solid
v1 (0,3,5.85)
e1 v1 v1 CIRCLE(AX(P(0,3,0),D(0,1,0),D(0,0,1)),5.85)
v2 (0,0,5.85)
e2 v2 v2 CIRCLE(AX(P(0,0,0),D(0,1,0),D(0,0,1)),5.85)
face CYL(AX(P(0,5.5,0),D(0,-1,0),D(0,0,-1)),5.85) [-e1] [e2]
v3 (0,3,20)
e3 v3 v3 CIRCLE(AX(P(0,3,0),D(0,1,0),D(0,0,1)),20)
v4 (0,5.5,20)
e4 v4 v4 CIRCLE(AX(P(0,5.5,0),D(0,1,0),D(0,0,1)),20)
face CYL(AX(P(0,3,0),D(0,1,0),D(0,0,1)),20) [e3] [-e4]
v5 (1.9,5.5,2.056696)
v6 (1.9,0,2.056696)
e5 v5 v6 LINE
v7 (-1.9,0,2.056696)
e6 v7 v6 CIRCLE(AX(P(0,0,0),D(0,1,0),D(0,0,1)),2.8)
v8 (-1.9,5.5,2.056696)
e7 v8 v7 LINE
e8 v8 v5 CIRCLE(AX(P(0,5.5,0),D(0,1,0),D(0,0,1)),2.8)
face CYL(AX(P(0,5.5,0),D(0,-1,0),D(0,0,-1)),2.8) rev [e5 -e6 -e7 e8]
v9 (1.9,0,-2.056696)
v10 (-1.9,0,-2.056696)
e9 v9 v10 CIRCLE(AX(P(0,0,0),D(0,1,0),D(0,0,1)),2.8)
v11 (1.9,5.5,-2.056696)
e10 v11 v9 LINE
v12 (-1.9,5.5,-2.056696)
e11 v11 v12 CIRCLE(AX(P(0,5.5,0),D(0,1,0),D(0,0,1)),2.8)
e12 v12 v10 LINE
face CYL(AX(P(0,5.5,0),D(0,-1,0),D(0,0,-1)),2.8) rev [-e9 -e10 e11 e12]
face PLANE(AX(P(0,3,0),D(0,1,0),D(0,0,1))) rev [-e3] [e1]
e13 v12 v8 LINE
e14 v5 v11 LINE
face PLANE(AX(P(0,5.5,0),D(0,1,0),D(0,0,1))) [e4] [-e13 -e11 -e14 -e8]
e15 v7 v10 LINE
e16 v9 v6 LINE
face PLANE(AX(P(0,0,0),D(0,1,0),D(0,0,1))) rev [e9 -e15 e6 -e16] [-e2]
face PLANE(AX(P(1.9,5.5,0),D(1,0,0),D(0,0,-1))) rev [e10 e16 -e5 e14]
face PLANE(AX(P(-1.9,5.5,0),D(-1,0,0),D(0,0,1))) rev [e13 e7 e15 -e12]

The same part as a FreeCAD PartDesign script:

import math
import FreeCAD as App
import Part
import Sketcher

doc = App.newDocument("Part")
params = doc.addObject("Spreadsheet::Sheet", "Params")
for row, (alias, value) in enumerate([
    ("sketch1_radius", "2.8 mm"),
    ("sketch1_radius2", "5.85 mm"),
    ("pad1_length", "5.5 mm"),
    ("sketch2_diameter", "40 mm"),
    ("pad2_length", "2.5 mm"),
    ("sketch3_radius", "2.8 mm"),
    ("pocket1_length", "8 mm"),
], start=1):
    params.set(f"A{row}", alias)
    params.set(f"B{row}", "=" + value)
    params.setAlias(f"B{row}", alias)

body = doc.addObject("PartDesign::Body", "Body")

# Sketch on XZ plane
sketch1 = body.newObject("Sketcher::SketchObject", "Sketch")
sketch1.AttachmentSupport = (doc.getObject("XZ_Plane"), [""])
sketch1.MapMode = "FlatFace"
sketch1.addGeometry([
    Part.ArcOfCircle(Part.Circle(App.Vector(0, 0, 0), App.Vector(0, 0, 1), 5.9), math.radians(0), math.radians(71)),  # 0
    Part.ArcOfCircle(Part.Circle(App.Vector(0, 0, 0), App.Vector(0, 0, 1), 5.9), math.radians(-71), math.radians(0)),  # 1
    Part.ArcOfCircle(Part.Circle(App.Vector(0, 0, 0), App.Vector(0, 0, 1), 5.8), math.radians(-109), math.radians(-71)),  # 2
    Part.ArcOfCircle(Part.Circle(App.Vector(0, 0, 0), App.Vector(0, 0, 1), 5.8), math.radians(109), math.radians(251)),  # 3
    Part.ArcOfCircle(Part.Circle(App.Vector(0, 0, 0), App.Vector(0, 0, 1), 5.8), math.radians(71), math.radians(109)),  # 4
    Part.ArcOfCircle(Part.Circle(App.Vector(0, 0, 0), App.Vector(0, 0, 1), 2.8), math.radians(-133), math.radians(-47)),  # 5
    Part.LineSegment(App.Vector(1.9, -2.1, 0), App.Vector(1.9, 2.1, 0)),  # 6
    Part.ArcOfCircle(Part.Circle(App.Vector(0, 0, 0), App.Vector(0, 0, 1), 2.8), math.radians(47), math.radians(133)),  # 7
    Part.LineSegment(App.Vector(-1.9, 2.1, 0), App.Vector(-1.9, -2.1, 0)),  # 8
], False)
sketch1.addConstraint([
    Sketcher.Constraint("Tangent", 0, 1, 1, 2),
    Sketcher.Constraint("Tangent", 1, 1, 2, 2),
    Sketcher.Constraint("Tangent", 2, 1, 3, 2),
    Sketcher.Constraint("Tangent", 3, 1, 4, 2),
    Sketcher.Constraint("Tangent", 4, 1, 0, 2),
    Sketcher.Constraint("Coincident", 5, 2, 6, 1),
    Sketcher.Constraint("Coincident", 6, 2, 7, 1),
    Sketcher.Constraint("Coincident", 7, 2, 8, 1),
    Sketcher.Constraint("Coincident", 8, 2, 5, 1),
    Sketcher.Constraint("Vertical", 6),
    Sketcher.Constraint("Vertical", 8),
    Sketcher.Constraint("Coincident", 0, 3, -1, 1),
    Sketcher.Constraint("Coincident", 2, 3, -1, 1),
    Sketcher.Constraint("Coincident", 5, 3, -1, 1),
    Sketcher.Constraint("Coincident", 7, 3, -1, 1),
    Sketcher.Constraint("Equal", 5, 7),
    Sketcher.Constraint("PointOnObject", 0, 1, -1),
    Sketcher.Constraint("Horizontal", 1, 1, 2, 1),
    Sketcher.Constraint("Horizontal", 3, 1, 4, 1),
    Sketcher.Constraint("Horizontal", 6, 2, 7, 2),
    Sketcher.Constraint("Vertical", 2, 1, 3, 1),
    Sketcher.Constraint("Vertical", 4, 1, 5, 2),
    Sketcher.Constraint("Radius", 5, 2.8),
    Sketcher.Constraint("Radius", 0, 5.85),
    Sketcher.Constraint("DistanceX", -1, 1, 1, 1, 1.9),
])
sketch1.setExpression("Constraints[22]", "Params.sketch1_radius")
sketch1.setExpression("Constraints[23]", "Params.sketch1_radius2")
pad1 = body.newObject("PartDesign::Pad", "Pad")
pad1.Profile = sketch1
pad1.setExpression("Length", "Params.pad1_length")
pad1.Reversed = True

# Sketch on XZ plane
sketch2 = body.newObject("Sketcher::SketchObject", "Sketch001")
sketch2.AttachmentSupport = (doc.getObject("XZ_Plane"), [""])
sketch2.MapMode = "FlatFace"
sketch2.AttachmentOffset = App.Placement(App.Vector(0, 0, -5.5), App.Rotation())
sketch2.addGeometry(Part.Circle(App.Vector(0, 0, 0), App.Vector(0, 0, 1), 20), False)
sketch2.addConstraint([
    Sketcher.Constraint("Coincident", 0, 3, -1, 1),
    Sketcher.Constraint("Diameter", 0, 40.0),
])
sketch2.setExpression("Constraints[1]", "Params.sketch2_diameter")
pad2 = body.newObject("PartDesign::Pad", "Pad001")
pad2.Profile = sketch2
pad2.setExpression("Length", "Params.pad2_length")

# Sketch on XZ plane
sketch3 = body.newObject("Sketcher::SketchObject", "Sketch002")
sketch3.AttachmentSupport = (doc.getObject("XZ_Plane"), [""])
sketch3.MapMode = "FlatFace"
sketch3.AttachmentOffset = App.Placement(App.Vector(0, 0, -3), App.Rotation())
sketch3.addGeometry([
    Part.LineSegment(App.Vector(-1.9, 2.1, 0), App.Vector(-1.9, -2.1, 0)),
    Part.ArcOfCircle(Part.Circle(App.Vector(0, 0, 0), App.Vector(0, 0, 1), 2.8), math.radians(-133), math.radians(-47)),
    Part.LineSegment(App.Vector(1.9, -2.1, 0), App.Vector(1.9, 2.1, 0)),
    Part.ArcOfCircle(Part.Circle(App.Vector(0, 0, 0), App.Vector(0, 0, 1), 2.8), math.radians(47), math.radians(133)),
], False)
sketch3.addConstraint([
    Sketcher.Constraint("Coincident", 0, 2, 1, 1),
    Sketcher.Constraint("Coincident", 1, 2, 2, 1),
    Sketcher.Constraint("Coincident", 2, 2, 3, 1),
    Sketcher.Constraint("Coincident", 3, 2, 0, 1),
    Sketcher.Constraint("Vertical", 0),
    Sketcher.Constraint("Vertical", 2),
    Sketcher.Constraint("Coincident", 1, 3, -1, 1),
    Sketcher.Constraint("Coincident", 3, 3, -1, 1),
    Sketcher.Constraint("Equal", 1, 3),
    Sketcher.Constraint("Horizontal", 0, 2, 1, 2),
    Sketcher.Constraint("Radius", 1, 2.8),
    Sketcher.Constraint("DistanceX", 0, 2, -1, 1, 1.9),
])
sketch3.setExpression("Constraints[10]", "Params.sketch3_radius")
pocket1 = body.newObject("PartDesign::Pocket", "Pocket")
pocket1.Profile = sketch3
pocket1.setExpression("Length", "Params.pocket1_length")

doc.recompute()
